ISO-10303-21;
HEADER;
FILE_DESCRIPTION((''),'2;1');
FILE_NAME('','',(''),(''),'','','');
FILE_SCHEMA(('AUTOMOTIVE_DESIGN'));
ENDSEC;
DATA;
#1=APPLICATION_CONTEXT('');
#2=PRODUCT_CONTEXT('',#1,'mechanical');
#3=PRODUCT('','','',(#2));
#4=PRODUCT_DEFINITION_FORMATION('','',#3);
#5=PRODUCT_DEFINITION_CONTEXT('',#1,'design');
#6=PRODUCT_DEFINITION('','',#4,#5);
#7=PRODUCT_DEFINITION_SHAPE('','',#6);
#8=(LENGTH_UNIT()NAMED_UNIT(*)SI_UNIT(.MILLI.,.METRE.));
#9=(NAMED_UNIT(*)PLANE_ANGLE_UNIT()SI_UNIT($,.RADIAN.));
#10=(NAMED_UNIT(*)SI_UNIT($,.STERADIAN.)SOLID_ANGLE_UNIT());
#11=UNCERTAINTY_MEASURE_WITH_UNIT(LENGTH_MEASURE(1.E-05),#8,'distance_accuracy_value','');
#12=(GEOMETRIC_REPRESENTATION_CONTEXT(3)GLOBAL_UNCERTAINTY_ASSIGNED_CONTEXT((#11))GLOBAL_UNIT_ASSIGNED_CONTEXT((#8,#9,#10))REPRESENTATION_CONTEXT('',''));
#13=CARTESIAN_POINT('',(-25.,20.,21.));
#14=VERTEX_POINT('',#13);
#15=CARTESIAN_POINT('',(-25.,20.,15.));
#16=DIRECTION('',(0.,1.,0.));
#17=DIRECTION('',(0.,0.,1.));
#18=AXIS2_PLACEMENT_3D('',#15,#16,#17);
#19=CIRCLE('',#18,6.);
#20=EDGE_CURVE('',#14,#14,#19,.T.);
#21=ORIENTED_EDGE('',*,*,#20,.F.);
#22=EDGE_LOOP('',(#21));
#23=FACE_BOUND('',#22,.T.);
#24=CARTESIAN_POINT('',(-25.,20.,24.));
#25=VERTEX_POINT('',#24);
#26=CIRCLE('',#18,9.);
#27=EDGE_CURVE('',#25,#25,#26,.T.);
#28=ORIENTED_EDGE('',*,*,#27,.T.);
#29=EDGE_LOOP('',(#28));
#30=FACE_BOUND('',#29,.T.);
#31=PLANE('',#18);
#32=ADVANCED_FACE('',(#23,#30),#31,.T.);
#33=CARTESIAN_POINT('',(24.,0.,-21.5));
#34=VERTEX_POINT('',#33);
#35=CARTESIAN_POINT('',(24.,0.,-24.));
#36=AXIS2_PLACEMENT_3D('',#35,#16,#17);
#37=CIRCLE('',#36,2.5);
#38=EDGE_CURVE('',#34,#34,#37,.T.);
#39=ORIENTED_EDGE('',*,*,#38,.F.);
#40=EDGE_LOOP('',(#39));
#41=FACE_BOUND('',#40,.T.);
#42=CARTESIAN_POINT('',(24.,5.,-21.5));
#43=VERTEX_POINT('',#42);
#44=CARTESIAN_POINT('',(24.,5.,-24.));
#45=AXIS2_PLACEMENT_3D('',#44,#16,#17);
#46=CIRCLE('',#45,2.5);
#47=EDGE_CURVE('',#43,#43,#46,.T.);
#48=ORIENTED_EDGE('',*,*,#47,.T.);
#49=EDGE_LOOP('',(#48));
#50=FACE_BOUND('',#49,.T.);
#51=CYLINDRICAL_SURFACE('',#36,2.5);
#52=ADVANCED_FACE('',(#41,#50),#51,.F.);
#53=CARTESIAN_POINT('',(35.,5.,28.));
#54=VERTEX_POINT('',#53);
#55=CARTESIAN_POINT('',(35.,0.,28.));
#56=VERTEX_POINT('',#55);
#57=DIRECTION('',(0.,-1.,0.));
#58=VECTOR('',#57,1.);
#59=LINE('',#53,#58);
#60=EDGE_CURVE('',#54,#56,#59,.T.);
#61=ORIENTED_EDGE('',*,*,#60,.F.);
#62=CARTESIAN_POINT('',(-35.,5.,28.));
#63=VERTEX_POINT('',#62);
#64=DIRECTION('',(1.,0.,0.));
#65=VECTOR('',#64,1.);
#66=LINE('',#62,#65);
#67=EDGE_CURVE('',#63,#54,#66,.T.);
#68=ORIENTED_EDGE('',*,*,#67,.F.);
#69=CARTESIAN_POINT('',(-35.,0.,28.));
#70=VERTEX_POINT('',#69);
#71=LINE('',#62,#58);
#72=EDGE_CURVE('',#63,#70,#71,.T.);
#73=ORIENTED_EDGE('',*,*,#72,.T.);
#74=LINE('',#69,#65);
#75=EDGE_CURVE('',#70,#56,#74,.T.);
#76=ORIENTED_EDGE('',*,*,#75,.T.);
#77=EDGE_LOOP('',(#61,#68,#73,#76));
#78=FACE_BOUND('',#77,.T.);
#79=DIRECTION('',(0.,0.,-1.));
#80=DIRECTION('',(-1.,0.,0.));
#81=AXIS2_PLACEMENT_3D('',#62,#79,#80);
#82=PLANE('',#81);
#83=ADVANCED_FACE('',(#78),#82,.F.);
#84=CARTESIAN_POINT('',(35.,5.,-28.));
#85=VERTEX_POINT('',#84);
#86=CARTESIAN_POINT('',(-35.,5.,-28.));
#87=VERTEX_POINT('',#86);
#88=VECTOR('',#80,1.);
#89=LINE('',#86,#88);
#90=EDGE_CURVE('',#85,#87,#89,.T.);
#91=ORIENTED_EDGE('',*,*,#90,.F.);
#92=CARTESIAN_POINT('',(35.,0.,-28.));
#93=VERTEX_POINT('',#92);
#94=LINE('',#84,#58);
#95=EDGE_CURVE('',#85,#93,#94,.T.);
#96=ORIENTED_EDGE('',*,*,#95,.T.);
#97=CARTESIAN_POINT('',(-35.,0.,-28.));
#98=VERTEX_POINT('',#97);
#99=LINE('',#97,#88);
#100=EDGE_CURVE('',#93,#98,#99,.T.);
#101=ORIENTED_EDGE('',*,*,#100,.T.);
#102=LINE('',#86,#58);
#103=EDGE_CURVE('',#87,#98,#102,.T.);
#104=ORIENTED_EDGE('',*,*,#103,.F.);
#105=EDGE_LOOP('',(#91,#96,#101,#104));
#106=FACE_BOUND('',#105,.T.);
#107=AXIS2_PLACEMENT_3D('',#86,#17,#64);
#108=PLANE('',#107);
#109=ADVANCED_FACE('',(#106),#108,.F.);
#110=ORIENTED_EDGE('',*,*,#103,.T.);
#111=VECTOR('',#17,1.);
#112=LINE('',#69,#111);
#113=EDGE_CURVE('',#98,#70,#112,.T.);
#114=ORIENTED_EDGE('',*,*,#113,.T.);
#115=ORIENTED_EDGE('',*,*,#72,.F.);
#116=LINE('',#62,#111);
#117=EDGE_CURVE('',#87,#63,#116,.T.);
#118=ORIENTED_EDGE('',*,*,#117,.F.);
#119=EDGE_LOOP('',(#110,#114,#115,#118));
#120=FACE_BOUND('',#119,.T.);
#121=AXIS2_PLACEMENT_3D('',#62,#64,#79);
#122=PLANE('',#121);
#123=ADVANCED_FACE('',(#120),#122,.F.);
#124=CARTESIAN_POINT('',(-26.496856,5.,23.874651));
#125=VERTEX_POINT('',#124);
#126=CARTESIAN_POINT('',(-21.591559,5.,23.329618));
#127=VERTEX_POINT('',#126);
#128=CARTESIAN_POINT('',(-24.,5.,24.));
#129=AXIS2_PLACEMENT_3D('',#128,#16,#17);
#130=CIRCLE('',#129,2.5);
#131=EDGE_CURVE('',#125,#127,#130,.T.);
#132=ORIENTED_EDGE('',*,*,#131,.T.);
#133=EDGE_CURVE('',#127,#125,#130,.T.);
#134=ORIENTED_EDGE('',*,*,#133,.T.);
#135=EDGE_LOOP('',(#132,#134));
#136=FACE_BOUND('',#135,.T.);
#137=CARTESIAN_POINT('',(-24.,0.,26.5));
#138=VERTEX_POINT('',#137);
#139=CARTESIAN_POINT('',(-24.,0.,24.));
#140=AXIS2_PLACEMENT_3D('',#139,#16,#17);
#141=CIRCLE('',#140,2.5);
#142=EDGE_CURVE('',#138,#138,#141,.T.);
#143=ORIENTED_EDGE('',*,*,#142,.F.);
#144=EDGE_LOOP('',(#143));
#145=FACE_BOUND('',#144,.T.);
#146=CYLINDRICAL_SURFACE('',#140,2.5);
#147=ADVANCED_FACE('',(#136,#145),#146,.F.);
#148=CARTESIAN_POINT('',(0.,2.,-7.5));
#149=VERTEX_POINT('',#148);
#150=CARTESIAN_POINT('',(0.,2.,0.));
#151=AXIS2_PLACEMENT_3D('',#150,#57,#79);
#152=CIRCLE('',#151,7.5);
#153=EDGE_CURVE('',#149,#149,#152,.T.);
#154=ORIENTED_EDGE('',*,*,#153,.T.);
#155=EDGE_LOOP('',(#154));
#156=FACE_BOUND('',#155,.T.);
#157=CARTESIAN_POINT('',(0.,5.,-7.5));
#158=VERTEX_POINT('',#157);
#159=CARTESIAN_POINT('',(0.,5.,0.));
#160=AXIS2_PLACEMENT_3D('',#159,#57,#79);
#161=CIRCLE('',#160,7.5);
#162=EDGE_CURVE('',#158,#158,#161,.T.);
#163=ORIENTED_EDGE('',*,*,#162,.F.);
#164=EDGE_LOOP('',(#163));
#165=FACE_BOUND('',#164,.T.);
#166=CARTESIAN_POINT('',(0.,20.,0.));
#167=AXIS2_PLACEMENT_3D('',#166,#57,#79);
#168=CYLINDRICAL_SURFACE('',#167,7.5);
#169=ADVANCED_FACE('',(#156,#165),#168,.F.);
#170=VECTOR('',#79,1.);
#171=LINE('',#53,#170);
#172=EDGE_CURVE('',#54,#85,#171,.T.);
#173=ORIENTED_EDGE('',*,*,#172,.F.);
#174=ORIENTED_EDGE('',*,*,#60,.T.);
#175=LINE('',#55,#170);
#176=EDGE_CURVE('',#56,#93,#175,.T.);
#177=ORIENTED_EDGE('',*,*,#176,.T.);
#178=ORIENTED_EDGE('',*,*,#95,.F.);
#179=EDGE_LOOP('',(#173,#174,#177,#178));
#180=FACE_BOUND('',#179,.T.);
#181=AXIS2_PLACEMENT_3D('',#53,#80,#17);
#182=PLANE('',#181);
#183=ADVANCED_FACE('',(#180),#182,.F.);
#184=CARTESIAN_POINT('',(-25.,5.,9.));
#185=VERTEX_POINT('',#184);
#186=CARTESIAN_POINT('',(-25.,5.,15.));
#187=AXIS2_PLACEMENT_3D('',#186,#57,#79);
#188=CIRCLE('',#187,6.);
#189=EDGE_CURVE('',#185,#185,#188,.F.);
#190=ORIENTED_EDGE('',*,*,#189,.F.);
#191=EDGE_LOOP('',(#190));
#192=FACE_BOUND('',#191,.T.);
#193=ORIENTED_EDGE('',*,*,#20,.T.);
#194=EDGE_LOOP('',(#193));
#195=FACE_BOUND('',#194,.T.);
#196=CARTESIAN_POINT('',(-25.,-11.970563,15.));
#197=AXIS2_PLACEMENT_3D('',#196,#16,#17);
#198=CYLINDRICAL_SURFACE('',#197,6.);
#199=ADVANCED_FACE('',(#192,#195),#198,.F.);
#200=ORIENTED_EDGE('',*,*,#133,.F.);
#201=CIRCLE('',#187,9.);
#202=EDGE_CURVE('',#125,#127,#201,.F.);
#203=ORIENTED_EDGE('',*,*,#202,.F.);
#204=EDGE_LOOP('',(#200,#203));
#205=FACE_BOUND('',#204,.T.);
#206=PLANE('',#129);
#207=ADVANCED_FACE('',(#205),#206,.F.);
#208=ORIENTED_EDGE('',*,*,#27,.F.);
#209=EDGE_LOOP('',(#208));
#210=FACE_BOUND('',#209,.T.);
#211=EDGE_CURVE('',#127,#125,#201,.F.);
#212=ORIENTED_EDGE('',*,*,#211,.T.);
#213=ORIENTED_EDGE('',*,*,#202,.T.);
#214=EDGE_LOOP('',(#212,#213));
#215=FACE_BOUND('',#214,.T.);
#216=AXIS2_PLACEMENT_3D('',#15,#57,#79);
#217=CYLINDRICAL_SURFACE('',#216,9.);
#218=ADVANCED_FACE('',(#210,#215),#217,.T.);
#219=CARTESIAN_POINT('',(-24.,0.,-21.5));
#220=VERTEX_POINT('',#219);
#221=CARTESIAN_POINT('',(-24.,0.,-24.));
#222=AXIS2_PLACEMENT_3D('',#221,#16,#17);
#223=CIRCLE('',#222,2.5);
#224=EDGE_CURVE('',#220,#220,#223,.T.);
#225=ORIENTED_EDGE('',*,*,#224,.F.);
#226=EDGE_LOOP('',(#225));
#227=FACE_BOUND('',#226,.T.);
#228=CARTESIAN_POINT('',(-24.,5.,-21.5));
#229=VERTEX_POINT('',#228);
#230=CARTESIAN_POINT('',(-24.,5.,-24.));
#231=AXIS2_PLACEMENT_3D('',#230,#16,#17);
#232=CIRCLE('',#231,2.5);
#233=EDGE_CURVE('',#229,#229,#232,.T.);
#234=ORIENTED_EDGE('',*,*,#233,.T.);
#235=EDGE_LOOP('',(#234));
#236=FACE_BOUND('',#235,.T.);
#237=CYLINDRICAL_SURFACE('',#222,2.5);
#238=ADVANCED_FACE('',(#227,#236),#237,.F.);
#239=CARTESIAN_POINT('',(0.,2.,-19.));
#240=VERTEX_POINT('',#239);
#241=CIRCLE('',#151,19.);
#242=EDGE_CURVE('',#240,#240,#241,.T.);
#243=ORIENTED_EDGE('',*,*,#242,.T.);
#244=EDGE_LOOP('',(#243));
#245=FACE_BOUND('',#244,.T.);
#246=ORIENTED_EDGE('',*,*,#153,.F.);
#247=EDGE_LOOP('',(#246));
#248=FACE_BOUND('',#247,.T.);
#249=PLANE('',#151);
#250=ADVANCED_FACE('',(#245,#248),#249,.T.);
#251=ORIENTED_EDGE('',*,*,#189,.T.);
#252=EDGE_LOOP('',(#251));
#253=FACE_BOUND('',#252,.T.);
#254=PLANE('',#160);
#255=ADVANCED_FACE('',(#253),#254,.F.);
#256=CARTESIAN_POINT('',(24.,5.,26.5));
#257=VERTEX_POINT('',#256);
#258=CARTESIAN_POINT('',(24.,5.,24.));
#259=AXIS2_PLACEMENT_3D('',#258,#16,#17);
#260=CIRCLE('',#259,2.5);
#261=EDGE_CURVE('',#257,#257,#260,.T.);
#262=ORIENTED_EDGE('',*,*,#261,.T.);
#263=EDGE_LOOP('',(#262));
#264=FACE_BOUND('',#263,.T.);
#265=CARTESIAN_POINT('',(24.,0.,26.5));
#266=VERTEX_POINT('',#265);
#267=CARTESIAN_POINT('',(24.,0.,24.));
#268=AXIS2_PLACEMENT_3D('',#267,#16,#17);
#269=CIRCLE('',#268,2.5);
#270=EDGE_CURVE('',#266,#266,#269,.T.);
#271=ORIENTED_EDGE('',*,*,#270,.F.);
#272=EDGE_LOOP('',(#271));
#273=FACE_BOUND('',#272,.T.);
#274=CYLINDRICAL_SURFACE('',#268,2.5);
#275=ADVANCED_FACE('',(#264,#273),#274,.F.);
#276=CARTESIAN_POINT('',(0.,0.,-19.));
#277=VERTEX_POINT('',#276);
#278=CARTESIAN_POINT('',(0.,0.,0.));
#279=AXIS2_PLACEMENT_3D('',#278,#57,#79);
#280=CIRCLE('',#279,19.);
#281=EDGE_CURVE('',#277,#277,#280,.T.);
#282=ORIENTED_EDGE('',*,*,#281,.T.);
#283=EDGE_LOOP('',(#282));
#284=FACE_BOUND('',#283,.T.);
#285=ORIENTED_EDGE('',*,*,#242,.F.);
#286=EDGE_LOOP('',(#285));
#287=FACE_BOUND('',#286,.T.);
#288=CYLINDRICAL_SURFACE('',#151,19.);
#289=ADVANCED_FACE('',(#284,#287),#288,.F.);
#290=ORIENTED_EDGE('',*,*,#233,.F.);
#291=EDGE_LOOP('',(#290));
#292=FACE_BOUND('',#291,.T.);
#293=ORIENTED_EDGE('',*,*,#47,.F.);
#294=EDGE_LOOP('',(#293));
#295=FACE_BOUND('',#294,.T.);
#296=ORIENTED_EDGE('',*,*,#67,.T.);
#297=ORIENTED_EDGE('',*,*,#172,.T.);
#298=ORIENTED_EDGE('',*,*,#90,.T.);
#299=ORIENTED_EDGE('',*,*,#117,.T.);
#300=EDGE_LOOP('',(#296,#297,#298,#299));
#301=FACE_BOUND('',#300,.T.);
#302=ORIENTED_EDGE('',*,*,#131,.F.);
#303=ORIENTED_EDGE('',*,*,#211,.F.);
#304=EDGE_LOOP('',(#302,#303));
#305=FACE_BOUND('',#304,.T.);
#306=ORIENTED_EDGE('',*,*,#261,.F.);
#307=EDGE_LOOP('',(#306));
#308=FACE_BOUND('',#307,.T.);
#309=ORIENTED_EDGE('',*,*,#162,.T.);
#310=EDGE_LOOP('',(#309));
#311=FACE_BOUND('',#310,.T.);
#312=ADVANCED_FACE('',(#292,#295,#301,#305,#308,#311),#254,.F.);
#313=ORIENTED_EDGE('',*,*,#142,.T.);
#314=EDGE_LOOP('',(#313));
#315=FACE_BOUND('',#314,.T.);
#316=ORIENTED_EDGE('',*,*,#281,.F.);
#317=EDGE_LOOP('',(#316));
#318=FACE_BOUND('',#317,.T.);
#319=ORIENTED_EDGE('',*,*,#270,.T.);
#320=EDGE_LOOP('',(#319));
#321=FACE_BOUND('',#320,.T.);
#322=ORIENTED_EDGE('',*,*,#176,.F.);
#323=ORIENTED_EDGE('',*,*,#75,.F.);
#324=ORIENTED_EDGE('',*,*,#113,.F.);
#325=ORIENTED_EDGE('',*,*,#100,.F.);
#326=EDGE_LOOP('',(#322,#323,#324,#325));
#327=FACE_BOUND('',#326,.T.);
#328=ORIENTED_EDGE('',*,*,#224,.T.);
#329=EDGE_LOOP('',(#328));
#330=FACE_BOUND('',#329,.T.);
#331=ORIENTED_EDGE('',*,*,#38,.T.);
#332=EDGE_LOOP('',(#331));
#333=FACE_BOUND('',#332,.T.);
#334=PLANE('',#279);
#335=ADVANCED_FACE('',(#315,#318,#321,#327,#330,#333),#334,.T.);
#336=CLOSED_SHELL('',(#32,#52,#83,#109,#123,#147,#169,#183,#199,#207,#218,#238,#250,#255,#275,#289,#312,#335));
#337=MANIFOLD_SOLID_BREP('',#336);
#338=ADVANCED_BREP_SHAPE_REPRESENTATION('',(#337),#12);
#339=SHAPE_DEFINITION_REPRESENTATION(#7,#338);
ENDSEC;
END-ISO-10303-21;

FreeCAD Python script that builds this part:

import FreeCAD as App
import Part
import Sketcher
from FreeCAD import Vector
Q = App.Units.Quantity

doc = App.newDocument("Part")
params = doc.addObject("Spreadsheet::Sheet", "Params")
for row, (alias, value) in enumerate([
    ("sketch1_width", "70 mm"),
    ("sketch1_height", "56 mm"),
    ("pad1_length", "5 mm"),
    ("sketch2_diameter", "18 mm"),
    ("pad2_length", "15 mm"),
    ("sketch3_diameter", "38 mm"),
    ("pocket1_length", "2 mm"),
    ("sketch4_diameter", "15 mm"),
    ("sketch5_diameter", "12 mm"),
    ("pocket3_length", "15 mm"),
    ("sketch6_diameter", "5 mm"),
], start=1):
    params.set(f"A{row}", alias)
    params.set(f"B{row}", "=" + value)
    params.setAlias(f"B{row}", alias)

body = doc.addObject("PartDesign::Body", "Body")

sketch1 = doc.addObject("Sketcher::SketchObject", "Sketch")
body.addObject(sketch1)
sketch1.AttachmentSupport = (doc.XZ_Plane, [""])
sketch1.MapMode = "FlatFace"
sketch1.addGeometry([
    Part.LineSegment(Vector(-35, -28, 0), Vector(-35, 28, 0)),
    Part.LineSegment(Vector(-35, 28, 0), Vector(35, 28, 0)),
    Part.LineSegment(Vector(35, 28, 0), Vector(35, -28, 0)),
    Part.LineSegment(Vector(35, -28, 0), Vector(-35, -28, 0)),
], False)
sketch1.addConstraint([
    Sketcher.Constraint("Coincident", 0, 2, 1, 1),
    Sketcher.Constraint("Coincident", 1, 2, 2, 1),
    Sketcher.Constraint("Coincident", 2, 2, 3, 1),
    Sketcher.Constraint("Coincident", 3, 2, 0, 1),
    Sketcher.Constraint("Vertical", 0),
    Sketcher.Constraint("Horizontal", 1),
    Sketcher.Constraint("Vertical", 2),
    Sketcher.Constraint("Horizontal", 3),
    Sketcher.Constraint("Symmetric", 0, 2, 2, 2, -1, 1),
    Sketcher.Constraint("DistanceX", 1, 1, 1, 2, Q("70 mm")),
    Sketcher.Constraint("DistanceY", 0, 1, 0, 2, Q("56 mm")),
])
sketch1.setExpression("Constraints[9]", "Params.sketch1_width")
sketch1.setExpression("Constraints[10]", "Params.sketch1_height")
pad1 = doc.addObject("PartDesign::Pad", "Pad")
body.addObject(pad1)
pad1.Profile = sketch1
pad1.setExpression("Length", "Params.pad1_length")
pad1.Reversed = True

sketch2 = doc.addObject("Sketcher::SketchObject", "Sketch001")
body.addObject(sketch2)
sketch2.AttachmentSupport = (doc.XZ_Plane, [""])
sketch2.MapMode = "FlatFace"
sketch2.AttachmentOffset = App.Placement(Vector(0, 0, -5), App.Rotation())
sketch2.addGeometry(Part.Circle(Vector(-25, 15, 0), Vector(0, 0, 1), 9), False)
sketch2.addConstraint([
    Sketcher.Constraint("Diameter", 0, Q("18 mm")),
    Sketcher.Constraint("DistanceX", 0, 3, -1, 1, Q("25 mm")),
    Sketcher.Constraint("DistanceY", -1, 1, 0, 3, Q("15 mm")),
])
sketch2.setExpression("Constraints[0]", "Params.sketch2_diameter")
pad2 = doc.addObject("PartDesign::Pad", "Pad001")
body.addObject(pad2)
pad2.Profile = sketch2
pad2.setExpression("Length", "Params.pad2_length")
pad2.Reversed = True

sketch3 = doc.addObject("Sketcher::SketchObject", "Sketch002")
body.addObject(sketch3)
sketch3.AttachmentSupport = (doc.XZ_Plane, [""])
sketch3.MapMode = "FlatFace"
sketch3.addGeometry(Part.Circle(Vector(0, 0, 0), Vector(0, 0, 1), 19), False)
sketch3.addConstraint([
    Sketcher.Constraint("Coincident", 0, 3, -1, 1),
    Sketcher.Constraint("Diameter", 0, Q("38 mm")),
])
sketch3.setExpression("Constraints[1]", "Params.sketch3_diameter")
pocket1 = doc.addObject("PartDesign::Pocket", "Pocket")
body.addObject(pocket1)
pocket1.Profile = sketch3
pocket1.setExpression("Length", "Params.pocket1_length")

sketch4 = doc.addObject("Sketcher::SketchObject", "Sketch003")
body.addObject(sketch4)
sketch4.AttachmentSupport = (doc.XZ_Plane, [""])
sketch4.MapMode = "FlatFace"
sketch4.AttachmentOffset = App.Placement(Vector(0, 0, -2), App.Rotation())
sketch4.addGeometry(Part.Circle(Vector(0, 0, 0), Vector(0, 0, 1), 7.5), False)
sketch4.addConstraint([
    Sketcher.Constraint("Coincident", 0, 3, -1, 1),
    Sketcher.Constraint("Diameter", 0, Q("15 mm")),
])
sketch4.setExpression("Constraints[1]", "Params.sketch4_diameter")
pocket2 = doc.addObject("PartDesign::Pocket", "Pocket001")
body.addObject(pocket2)
pocket2.Profile = sketch4
pocket2.Type = "ThroughAll"
pocket2.Midplane = True

sketch5 = doc.addObject("Sketcher::SketchObject", "Sketch004")
body.addObject(sketch5)
sketch5.AttachmentSupport = (doc.XZ_Plane, [""])
sketch5.MapMode = "FlatFace"
sketch5.AttachmentOffset = App.Placement(Vector(0, 0, -20), App.Rotation())
sketch5.addGeometry(Part.Circle(Vector(-25, 15, 0), Vector(0, 0, 1), 6), False)
sketch5.addConstraint([
    Sketcher.Constraint("Diameter", 0, Q("12 mm")),
    Sketcher.Constraint("DistanceX", 0, 3, -1, 1, Q("25 mm")),
    Sketcher.Constraint("DistanceY", -1, 1, 0, 3, Q("15 mm")),
])
sketch5.setExpression("Constraints[0]", "Params.sketch5_diameter")
pocket3 = doc.addObject("PartDesign::Pocket", "Pocket002")
body.addObject(pocket3)
pocket3.Profile = sketch5
pocket3.setExpression("Length", "Params.pocket3_length")
pocket3.Reversed = True

sketch6 = doc.addObject("Sketcher::SketchObject", "Sketch005")
body.addObject(sketch6)
sketch6.AttachmentSupport = (doc.XZ_Plane, [""])
sketch6.MapMode = "FlatFace"
sketch6.AttachmentOffset = App.Placement(Vector(0, 0, -5), App.Rotation())
sketch6.addGeometry([
    Part.Circle(Vector(-24, -24, 0), Vector(0, 0, 1), 2.5),
    Part.Circle(Vector(24, -24, 0), Vector(0, 0, 1), 2.5),
    Part.Circle(Vector(24, 24, 0), Vector(0, 0, 1), 2.5),
    Part.Circle(Vector(-24, 24, 0), Vector(0, 0, 1), 2.5),
], False)
sketch6.addConstraint([
    Sketcher.Constraint("Equal", 0, 1),
    Sketcher.Constraint("Equal", 1, 2),
    Sketcher.Constraint("Equal", 2, 3),
    Sketcher.Constraint("Symmetric", 0, 3, 2, 3, -1, 1),
    Sketcher.Constraint("Symmetric", 1, 3, 3, 3, -1, 1),
    Sketcher.Constraint("Symmetric", 0, 3, 1, 3, -2),
    Sketcher.Constraint("Diameter", 0, Q("5 mm")),
    Sketcher.Constraint("DistanceX", 0, 3, -1, 1, Q("24 mm")),
    Sketcher.Constraint("DistanceY", 0, 3, -1, 1, Q("24 mm")),
])
sketch6.setExpression("Constraints[6]", "Params.sketch6_diameter")
pocket4 = doc.addObject("PartDesign::Pocket", "Pocket003")
body.addObject(pocket4)
pocket4.Profile = sketch6
pocket4.Type = "ThroughAll"
pocket4.Reversed = True

doc.recompute()
